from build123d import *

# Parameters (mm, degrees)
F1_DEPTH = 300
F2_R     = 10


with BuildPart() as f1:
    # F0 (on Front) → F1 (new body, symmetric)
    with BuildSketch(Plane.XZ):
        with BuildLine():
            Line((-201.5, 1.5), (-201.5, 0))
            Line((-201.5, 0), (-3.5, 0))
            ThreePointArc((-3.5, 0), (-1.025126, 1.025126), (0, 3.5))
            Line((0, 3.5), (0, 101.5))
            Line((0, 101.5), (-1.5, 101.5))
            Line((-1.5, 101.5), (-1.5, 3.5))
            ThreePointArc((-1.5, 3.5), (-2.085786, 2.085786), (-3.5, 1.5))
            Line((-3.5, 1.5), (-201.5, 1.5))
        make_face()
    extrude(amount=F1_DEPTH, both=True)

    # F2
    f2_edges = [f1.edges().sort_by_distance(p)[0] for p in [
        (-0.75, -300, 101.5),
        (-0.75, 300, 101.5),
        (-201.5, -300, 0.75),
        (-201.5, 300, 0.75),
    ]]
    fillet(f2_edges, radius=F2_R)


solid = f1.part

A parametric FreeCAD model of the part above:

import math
import FreeCAD as App
import Part
import Sketcher

V = App.Vector


def edges_at(feature, points):
    """Names of the edges that pass closest to the given points."""
    edges = feature.Shape.Edges
    near = lambda p: min(range(len(edges)), key=lambda i: edges[i].distToShape(Part.Vertex(*p))[0])
    return sorted({f"Edge{near(p) + 1}" for p in points})

doc = App.newDocument("Part")
body = doc.addObject("PartDesign::Body", "Body")

# Sketch on XZ plane
sketch1 = body.newObject("Sketcher::SketchObject", "Sketch")
sketch1.AttachmentSupport = (doc.getObject("XZ_Plane"), [""])
sketch1.MapMode = "FlatFace"
sketch1.addGeometry(Part.LineSegment(V(-201.5, 1.5, 0), V(-201.5, 0, 0)), False)
sketch1.addGeometry(Part.LineSegment(V(-201.5, 0, 0), V(-3.5, 0, 0)), False)
sketch1.addGeometry(Part.ArcOfCircle(Part.Circle(V(-3.5, 3.5, 0), V(0, 0, 1), 3.5), math.radians(-90), math.radians(0)), False)
sketch1.addGeometry(Part.LineSegment(V(0, 3.5, 0), V(0, 101.5, 0)), False)
sketch1.addGeometry(Part.LineSegment(V(0, 101.5, 0), V(-1.5, 101.5, 0)), False)
sketch1.addGeometry(Part.LineSegment(V(-1.5, 101.5, 0), V(-1.5, 3.5, 0)), False)
sketch1.addGeometry(Part.ArcOfCircle(Part.Circle(V(-3.5, 3.5, 0), V(0, 0, 1), 2), math.radians(-90), math.radians(0)), False)
sketch1.addGeometry(Part.LineSegment(V(-3.5, 1.5, 0), V(-201.5, 1.5, 0)), False)
sketch1.addConstraint(Sketcher.Constraint("Coincident", 0, 2, 1, 1))
sketch1.addConstraint(Sketcher.Constraint("Tangent", 1, 2, 2, 1))
sketch1.addConstraint(Sketcher.Constraint("Tangent", 2, 2, 3, 1))
sketch1.addConstraint(Sketcher.Constraint("Coincident", 3, 2, 4, 1))
sketch1.addConstraint(Sketcher.Constraint("Coincident", 4, 2, 5, 1))
sketch1.addConstraint(Sketcher.Constraint("Tangent", 5, 2, 6, 2))
sketch1.addConstraint(Sketcher.Constraint("Tangent", 6, 1, 7, 1))
sketch1.addConstraint(Sketcher.Constraint("Coincident", 7, 2, 0, 1))
sketch1.addConstraint(Sketcher.Constraint("Vertical", 0))
sketch1.addConstraint(Sketcher.Constraint("Horizontal", 1))
sketch1.addConstraint(Sketcher.Constraint("Vertical", 3))
sketch1.addConstraint(Sketcher.Constraint("Horizontal", 4))
sketch1.addConstraint(Sketcher.Constraint("Vertical", 5))
sketch1.addConstraint(Sketcher.Constraint("Horizontal", 7))
sketch1.addConstraint(Sketcher.Constraint("Coincident", 6, 3, 2, 3))
sketch1.addConstraint(Sketcher.Constraint("PointOnObject", 0, 2, -1))
sketch1.addConstraint(Sketcher.Constraint("PointOnObject", 2, 2, -2))
sketch1.addConstraint(Sketcher.Constraint("Radius", 6, 1.999999))
sketch1.addConstraint(Sketcher.Constraint("Radius", 2, 3.499999))
sketch1.addConstraint(Sketcher.Constraint("DistanceX", 1, 1, 1, 2, 198.0))
sketch1.addConstraint(Sketcher.Constraint("DistanceY", 3, 1, 3, 2, 98.0))
pad1 = body.newObject("PartDesign::Pad", "Pad")
pad1.Profile = sketch1
pad1.Length = 600
pad1.Midplane = True
doc.recompute()

fillet = body.newObject("PartDesign::Fillet", "Fillet")
fillet.Base = (pad1, edges_at(pad1, [
    (-0.75, -300, 101.5),
    (-0.75, 300, 101.5),
    (-201.5, -300, 0.75),
    (-201.5, 300, 0.75),
]))
fillet.Radius = 10

doc.recompute()
